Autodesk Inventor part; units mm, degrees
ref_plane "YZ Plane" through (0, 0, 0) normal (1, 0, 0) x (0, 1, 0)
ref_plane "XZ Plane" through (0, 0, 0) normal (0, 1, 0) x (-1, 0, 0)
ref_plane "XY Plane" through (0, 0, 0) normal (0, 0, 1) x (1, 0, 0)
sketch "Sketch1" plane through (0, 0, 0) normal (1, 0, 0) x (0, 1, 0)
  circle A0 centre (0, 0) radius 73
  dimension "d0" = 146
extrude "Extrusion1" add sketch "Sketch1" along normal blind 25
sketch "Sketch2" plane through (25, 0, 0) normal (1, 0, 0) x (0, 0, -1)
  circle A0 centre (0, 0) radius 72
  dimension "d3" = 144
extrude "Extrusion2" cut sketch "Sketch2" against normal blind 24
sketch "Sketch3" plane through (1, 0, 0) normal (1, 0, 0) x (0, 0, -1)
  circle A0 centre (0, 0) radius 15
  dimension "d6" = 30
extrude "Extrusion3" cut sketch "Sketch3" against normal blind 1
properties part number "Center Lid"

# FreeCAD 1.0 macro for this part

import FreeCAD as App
import Part
import Sketcher

V = App.Vector
Q = App.Units.Quantity

doc = App.newDocument("Part")
body = doc.addObject("PartDesign::Body", "Body")

sketch1 = body.newObject("Sketcher::SketchObject", "Sketch")
sketch1.AttachmentSupport = (doc.getObject("YZ_Plane"), [""])
sketch1.MapMode = "FlatFace"
sketch1.addGeometry(Part.Circle(V(0, 0, 0), V(0, 0, 1), 73), False)
sketch1.addConstraint([
    Sketcher.Constraint("Coincident", 0, 3, -1, 1),
    Sketcher.Constraint("Diameter", 0, Q("146 mm")),
])
pad1 = body.newObject("PartDesign::Pad", "Pad")
pad1.Profile = sketch1
pad1.Length = 25

sketch2 = body.newObject("Sketcher::SketchObject", "Sketch001")
sketch2.AttachmentSupport = (doc.getObject("YZ_Plane"), [""])
sketch2.MapMode = "FlatFace"
sketch2.AttachmentOffset = App.Placement(V(0, 0, 25), App.Rotation())
sketch2.addGeometry(Part.Circle(V(0, 0, 0), V(0, 0, 1), 72), False)
sketch2.addConstraint([
    Sketcher.Constraint("Coincident", 0, 3, -1, 1),
    Sketcher.Constraint("Diameter", 0, Q("144 mm")),
])
pocket1 = body.newObject("PartDesign::Pocket", "Pocket")
pocket1.Profile = sketch2
pocket1.Length = 24

sketch3 = body.newObject("Sketcher::SketchObject", "Sketch002")
sketch3.AttachmentSupport = (doc.getObject("YZ_Plane"), [""])
sketch3.MapMode = "FlatFace"
sketch3.AttachmentOffset = App.Placement(V(0, 0, 1), App.Rotation())
sketch3.addGeometry(Part.Circle(V(0, 0, 0), V(0, 0, 1), 15), False)
sketch3.addConstraint([
    Sketcher.Constraint("Coincident", 0, 3, -1, 1),
    Sketcher.Constraint("Diameter", 0, Q("30 mm")),
])
pocket2 = body.newObject("PartDesign::Pocket", "Pocket001")
pocket2.Profile = sketch3
pocket2.Length = 1

doc.recompute()
